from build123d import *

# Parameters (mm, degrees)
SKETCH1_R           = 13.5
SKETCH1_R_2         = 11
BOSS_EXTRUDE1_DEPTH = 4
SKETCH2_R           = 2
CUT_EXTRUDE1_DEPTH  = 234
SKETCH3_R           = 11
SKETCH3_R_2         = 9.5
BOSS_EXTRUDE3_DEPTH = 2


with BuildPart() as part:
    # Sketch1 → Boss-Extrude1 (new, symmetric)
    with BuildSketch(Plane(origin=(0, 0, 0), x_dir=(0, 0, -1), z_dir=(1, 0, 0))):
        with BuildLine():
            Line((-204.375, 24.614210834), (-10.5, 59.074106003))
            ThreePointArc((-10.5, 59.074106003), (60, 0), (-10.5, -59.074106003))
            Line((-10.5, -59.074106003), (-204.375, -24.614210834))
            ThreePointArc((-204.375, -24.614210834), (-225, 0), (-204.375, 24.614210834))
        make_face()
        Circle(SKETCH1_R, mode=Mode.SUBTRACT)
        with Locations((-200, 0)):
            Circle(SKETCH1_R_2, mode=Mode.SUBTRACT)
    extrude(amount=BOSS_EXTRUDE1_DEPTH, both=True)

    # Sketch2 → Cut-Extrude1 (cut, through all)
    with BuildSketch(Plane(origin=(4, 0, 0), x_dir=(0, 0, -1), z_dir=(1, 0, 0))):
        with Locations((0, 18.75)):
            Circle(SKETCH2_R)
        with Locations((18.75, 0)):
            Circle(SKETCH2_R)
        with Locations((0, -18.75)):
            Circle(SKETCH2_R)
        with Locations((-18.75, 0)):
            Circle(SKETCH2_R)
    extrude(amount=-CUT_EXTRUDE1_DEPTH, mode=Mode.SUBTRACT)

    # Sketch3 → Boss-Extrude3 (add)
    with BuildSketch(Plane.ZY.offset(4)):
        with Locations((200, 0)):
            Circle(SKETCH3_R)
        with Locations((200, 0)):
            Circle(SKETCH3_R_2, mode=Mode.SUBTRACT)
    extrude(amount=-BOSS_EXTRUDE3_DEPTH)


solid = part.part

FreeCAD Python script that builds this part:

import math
import FreeCAD as App
import Part
import Sketcher

V = App.Vector

doc = App.newDocument("Part")
body = doc.addObject("PartDesign::Body", "Body")

sketch1 = doc.addObject("Sketcher::SketchObject", "Sketch")
body.addObject(sketch1)
sketch1.AttachmentSupport = (doc.YZ_Plane, [""])
sketch1.MapMode = "FlatFace"
sketch1.addGeometry([
    Part.LineSegment(V(59.074106, 10.5, 0), V(24.614211, 204.375, 0)),
    Part.ArcOfCircle(Part.Circle(V(0, 200, 0), V(0, 0, 1), 25), math.radians(10.078658), math.radians(169.921342)),
    Part.LineSegment(V(-24.614211, 204.375, 0), V(-59.074106, 10.5, 0)),
    Part.ArcOfCircle(Part.Circle(V(0, 0, 0), V(0, 0, 1), 60), math.radians(169.921342), math.radians(370.078658)),
    Part.Circle(V(0, 0, 0), V(0, 0, 1), 13.5),
    Part.Circle(V(0, 200, 0), V(0, 0, 1), 11),
], False)
sketch1.addConstraint([
    Sketcher.Constraint("Tangent", 0, 2, 1, 1),
    Sketcher.Constraint("Tangent", 1, 2, 2, 1),
    Sketcher.Constraint("Tangent", 2, 2, 3, 1),
    Sketcher.Constraint("Tangent", 3, 2, 0, 1),
    Sketcher.Constraint("Coincident", 3, 3, -1, 1),
    Sketcher.Constraint("Coincident", 4, 3, -1, 1),
    Sketcher.Constraint("Coincident", 5, 3, 1, 3),
    Sketcher.Constraint("PointOnObject", 1, 3, -2),
    Sketcher.Constraint("Diameter", 4, 27.0),
    Sketcher.Constraint("Diameter", 5, 22.0),
    Sketcher.Constraint("Radius", 1, 25.0),
    Sketcher.Constraint("Radius", 3, 60.0),
    Sketcher.Constraint("DistanceY", -1, 1, 1, 3, 200.0),
])
pad1 = doc.addObject("PartDesign::Pad", "Pad")
body.addObject(pad1)
pad1.Profile = sketch1
pad1.Length = 8
pad1.Midplane = True

sketch2 = doc.addObject("Sketcher::SketchObject", "Sketch001")
body.addObject(sketch2)
sketch2.AttachmentSupport = (doc.YZ_Plane, [""])
sketch2.MapMode = "FlatFace"
sketch2.AttachmentOffset = App.Placement(V(0, 0, 4), App.Rotation())
sketch2.addGeometry([
    Part.Circle(V(18.75, 0, 0), V(0, 0, 1), 2),
    Part.Circle(V(0, -18.75, 0), V(0, 0, 1), 2),
    Part.Circle(V(-18.75, 0, 0), V(0, 0, 1), 2),
    Part.Circle(V(0, 18.75, 0), V(0, 0, 1), 2),
], False)
sketch2.addConstraint([
    Sketcher.Constraint("Equal", 0, 1),
    Sketcher.Constraint("Equal", 1, 2),
    Sketcher.Constraint("Equal", 2, 3),
    Sketcher.Constraint("Symmetric", 0, 3, 2, 3, -1, 1),
    Sketcher.Constraint("Symmetric", 1, 3, 3, 3, -1, 1),
    Sketcher.Constraint("PointOnObject", 0, 3, -1),
    Sketcher.Constraint("PointOnObject", 1, 3, -2),
    Sketcher.Constraint("Diameter", 0, 4.0),
    Sketcher.Constraint("DistanceX", 2, 3, 0, 3, 37.5),
    Sketcher.Constraint("DistanceY", 1, 3, 3, 3, 37.5),
])
pocket1 = doc.addObject("PartDesign::Pocket", "Pocket")
body.addObject(pocket1)
pocket1.Profile = sketch2
pocket1.Type = "ThroughAll"

sketch3 = doc.addObject("Sketcher::SketchObject", "Sketch002")
body.addObject(sketch3)
sketch3.AttachmentSupport = (doc.YZ_Plane, [""])
sketch3.MapMode = "FlatFace"
sketch3.AttachmentOffset = App.Placement(V(0, 0, -4), App.Rotation())
sketch3.addGeometry([
    Part.Circle(V(0, 200, 0), V(0, 0, 1), 11),
    Part.Circle(V(0, 200, 0), V(0, 0, 1), 9.5),
], False)
sketch3.addConstraint([
    Sketcher.Constraint("Coincident", 1, 3, 0, 3),
    Sketcher.Constraint("PointOnObject", 0, 3, -2),
    Sketcher.Constraint("Diameter", 0, 22.0),
    Sketcher.Constraint("Diameter", 1, 19.0),
    Sketcher.Constraint("DistanceY", -1, 1, 0, 3, 200.0),
])
pad2 = doc.addObject("PartDesign::Pad", "Pad001")
body.addObject(pad2)
pad2.Profile = sketch3
pad2.Length = 2

doc.recompute()
